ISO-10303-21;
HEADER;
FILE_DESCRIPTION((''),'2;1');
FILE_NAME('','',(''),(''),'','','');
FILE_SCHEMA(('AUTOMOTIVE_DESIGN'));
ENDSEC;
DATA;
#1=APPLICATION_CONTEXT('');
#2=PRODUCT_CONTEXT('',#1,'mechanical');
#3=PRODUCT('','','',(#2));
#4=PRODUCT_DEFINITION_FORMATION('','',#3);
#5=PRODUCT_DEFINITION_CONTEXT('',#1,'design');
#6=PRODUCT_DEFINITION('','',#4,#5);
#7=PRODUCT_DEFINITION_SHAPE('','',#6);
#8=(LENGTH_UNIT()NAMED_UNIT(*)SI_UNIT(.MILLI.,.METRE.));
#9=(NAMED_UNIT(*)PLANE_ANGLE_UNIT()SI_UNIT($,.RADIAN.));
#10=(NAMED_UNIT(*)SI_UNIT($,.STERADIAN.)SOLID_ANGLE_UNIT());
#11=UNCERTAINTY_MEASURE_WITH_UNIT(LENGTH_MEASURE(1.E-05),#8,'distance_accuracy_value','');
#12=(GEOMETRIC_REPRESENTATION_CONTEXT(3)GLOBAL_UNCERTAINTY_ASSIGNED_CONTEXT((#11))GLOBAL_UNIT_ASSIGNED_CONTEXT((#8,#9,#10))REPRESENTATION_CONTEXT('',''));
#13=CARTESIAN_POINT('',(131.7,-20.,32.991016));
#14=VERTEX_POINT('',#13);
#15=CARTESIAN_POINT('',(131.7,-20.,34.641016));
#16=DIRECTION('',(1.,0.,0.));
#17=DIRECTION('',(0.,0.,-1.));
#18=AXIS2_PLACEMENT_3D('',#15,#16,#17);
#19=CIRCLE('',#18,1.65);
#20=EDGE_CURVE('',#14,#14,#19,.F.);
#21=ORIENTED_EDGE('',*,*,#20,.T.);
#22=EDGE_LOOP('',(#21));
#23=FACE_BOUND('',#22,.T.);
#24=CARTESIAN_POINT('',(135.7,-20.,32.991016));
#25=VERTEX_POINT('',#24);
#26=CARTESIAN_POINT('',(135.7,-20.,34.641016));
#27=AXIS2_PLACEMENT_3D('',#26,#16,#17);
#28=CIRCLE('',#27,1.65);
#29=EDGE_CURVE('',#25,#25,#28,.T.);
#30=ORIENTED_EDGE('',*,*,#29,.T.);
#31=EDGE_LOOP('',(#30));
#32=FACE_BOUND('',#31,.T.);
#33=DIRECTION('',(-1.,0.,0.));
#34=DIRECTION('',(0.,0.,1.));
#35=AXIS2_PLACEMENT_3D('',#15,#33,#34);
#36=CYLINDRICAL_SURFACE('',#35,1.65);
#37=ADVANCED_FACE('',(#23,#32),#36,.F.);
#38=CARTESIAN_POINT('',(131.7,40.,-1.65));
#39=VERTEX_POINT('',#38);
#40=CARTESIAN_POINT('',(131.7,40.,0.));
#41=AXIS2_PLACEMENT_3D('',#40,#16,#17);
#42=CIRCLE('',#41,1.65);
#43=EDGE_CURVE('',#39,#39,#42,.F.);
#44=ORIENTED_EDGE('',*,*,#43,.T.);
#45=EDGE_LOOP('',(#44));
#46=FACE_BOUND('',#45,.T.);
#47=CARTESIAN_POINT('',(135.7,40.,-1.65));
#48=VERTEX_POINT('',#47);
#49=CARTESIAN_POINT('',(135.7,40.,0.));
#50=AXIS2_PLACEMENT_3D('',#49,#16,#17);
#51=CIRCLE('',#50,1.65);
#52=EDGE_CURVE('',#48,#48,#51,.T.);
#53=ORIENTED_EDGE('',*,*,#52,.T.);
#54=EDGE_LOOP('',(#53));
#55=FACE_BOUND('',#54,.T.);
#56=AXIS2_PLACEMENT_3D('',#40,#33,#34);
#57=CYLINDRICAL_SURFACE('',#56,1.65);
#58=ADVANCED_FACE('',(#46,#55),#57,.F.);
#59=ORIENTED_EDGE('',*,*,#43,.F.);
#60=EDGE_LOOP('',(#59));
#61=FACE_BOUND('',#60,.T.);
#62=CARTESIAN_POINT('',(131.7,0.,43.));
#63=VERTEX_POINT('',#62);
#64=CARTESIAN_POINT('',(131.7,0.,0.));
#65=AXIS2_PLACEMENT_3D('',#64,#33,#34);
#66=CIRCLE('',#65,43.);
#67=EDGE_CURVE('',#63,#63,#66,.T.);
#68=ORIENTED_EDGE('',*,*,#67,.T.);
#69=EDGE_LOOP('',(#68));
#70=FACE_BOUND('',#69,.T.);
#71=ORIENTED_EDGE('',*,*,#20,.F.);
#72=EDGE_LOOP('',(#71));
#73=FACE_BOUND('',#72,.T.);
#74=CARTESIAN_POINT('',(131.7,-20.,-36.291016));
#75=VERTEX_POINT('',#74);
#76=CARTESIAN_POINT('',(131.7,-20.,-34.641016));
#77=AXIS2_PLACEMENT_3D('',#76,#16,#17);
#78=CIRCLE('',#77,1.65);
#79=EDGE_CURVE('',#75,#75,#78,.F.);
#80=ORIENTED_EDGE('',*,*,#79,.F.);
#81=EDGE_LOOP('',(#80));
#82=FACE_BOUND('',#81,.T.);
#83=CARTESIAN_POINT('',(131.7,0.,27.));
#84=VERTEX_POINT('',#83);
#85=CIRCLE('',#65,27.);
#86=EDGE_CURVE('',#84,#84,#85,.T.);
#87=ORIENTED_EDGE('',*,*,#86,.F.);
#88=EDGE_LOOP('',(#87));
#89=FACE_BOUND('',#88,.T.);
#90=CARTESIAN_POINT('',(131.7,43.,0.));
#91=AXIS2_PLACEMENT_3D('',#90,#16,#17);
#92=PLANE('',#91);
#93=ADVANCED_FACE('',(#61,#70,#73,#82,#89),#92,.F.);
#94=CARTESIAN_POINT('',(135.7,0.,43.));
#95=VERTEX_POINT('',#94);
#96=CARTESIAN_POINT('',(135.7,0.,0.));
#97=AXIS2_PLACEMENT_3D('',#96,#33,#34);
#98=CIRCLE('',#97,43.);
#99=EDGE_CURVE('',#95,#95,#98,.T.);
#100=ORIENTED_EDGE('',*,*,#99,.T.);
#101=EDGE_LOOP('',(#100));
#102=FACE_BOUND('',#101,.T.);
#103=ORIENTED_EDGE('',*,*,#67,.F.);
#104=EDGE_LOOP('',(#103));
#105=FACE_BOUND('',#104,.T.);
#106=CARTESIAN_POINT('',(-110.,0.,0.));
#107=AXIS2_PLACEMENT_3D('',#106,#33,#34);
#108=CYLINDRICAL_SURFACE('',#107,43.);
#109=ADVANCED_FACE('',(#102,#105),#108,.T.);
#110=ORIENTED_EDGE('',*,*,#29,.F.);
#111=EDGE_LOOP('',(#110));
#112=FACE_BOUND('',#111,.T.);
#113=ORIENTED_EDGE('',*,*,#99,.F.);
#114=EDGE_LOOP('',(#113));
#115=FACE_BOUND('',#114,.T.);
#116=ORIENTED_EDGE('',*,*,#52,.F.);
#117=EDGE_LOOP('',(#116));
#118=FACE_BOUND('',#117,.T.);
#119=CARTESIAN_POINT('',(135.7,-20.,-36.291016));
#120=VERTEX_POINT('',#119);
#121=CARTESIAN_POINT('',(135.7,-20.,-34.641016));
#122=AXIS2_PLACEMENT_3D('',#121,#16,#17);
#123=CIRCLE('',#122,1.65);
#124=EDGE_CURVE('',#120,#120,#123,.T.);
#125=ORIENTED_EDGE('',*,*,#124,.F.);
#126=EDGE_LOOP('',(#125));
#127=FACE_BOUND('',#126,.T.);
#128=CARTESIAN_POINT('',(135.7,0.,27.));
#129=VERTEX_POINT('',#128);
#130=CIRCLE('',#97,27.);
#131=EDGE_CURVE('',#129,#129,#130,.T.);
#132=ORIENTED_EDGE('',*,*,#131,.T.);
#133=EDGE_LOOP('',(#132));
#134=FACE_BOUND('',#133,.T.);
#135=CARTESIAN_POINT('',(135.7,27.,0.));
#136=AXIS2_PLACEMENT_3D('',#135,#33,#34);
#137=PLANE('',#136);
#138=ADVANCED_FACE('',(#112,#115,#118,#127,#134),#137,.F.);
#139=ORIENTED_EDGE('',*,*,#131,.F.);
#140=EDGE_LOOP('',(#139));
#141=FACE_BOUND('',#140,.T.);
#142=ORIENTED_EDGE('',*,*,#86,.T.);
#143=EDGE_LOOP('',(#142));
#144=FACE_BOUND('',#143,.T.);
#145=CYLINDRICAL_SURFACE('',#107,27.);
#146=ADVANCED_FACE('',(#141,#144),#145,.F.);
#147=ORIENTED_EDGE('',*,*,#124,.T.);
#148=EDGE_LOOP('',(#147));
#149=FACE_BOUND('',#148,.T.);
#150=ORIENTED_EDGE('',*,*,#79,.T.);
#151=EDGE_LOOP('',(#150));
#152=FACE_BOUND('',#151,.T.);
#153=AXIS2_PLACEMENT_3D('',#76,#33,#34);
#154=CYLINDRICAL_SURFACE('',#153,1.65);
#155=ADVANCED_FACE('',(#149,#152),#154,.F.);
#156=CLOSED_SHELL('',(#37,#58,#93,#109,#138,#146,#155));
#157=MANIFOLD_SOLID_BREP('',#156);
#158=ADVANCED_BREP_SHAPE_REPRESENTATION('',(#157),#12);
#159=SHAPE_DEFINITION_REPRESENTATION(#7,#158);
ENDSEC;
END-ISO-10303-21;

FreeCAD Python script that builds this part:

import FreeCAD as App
import Part
import Sketcher

V = App.Vector
Q = App.Units.Quantity

doc = App.newDocument("Part")
body = doc.addObject("PartDesign::Body", "Body")

# Sketch on XY plane
sketch1 = body.newObject("Sketcher::SketchObject", "Sketch")
sketch1.AttachmentSupport = (doc.getObject("XY_Plane"), [""])
sketch1.MapMode = "FlatFace"
sketch1.addGeometry(Part.LineSegment(V(131.7, 43, 0), V(131.7, 27, 0)), False)
sketch1.addGeometry(Part.LineSegment(V(131.7, 27, 0), V(135.7, 27, 0)), False)
sketch1.addGeometry(Part.LineSegment(V(135.7, 27, 0), V(135.7, 43, 0)), False)
sketch1.addGeometry(Part.LineSegment(V(135.7, 43, 0), V(131.7, 43, 0)), False)
sketch1.addConstraint(Sketcher.Constraint("Coincident", 0, 2, 1, 1))
sketch1.addConstraint(Sketcher.Constraint("Coincident", 1, 2, 2, 1))
sketch1.addConstraint(Sketcher.Constraint("Coincident", 2, 2, 3, 1))
sketch1.addConstraint(Sketcher.Constraint("Coincident", 3, 2, 0, 1))
sketch1.addConstraint(Sketcher.Constraint("Vertical", 0))
sketch1.addConstraint(Sketcher.Constraint("Horizontal", 1))
sketch1.addConstraint(Sketcher.Constraint("Vertical", 2))
sketch1.addConstraint(Sketcher.Constraint("Horizontal", 3))
sketch1.addConstraint(Sketcher.Constraint("DistanceX", 1, 1, 1, 2, Q("4 mm")))
sketch1.addConstraint(Sketcher.Constraint("DistanceY", 0, 2, 0, 1, Q("16 mm")))
sketch1.addConstraint(Sketcher.Constraint("DistanceY", -1, 1, 0, 2, Q("27 mm")))
sketch1.addConstraint(Sketcher.Constraint("DistanceX", -1, 1, 0, 2, Q("131.7 mm")))
revolution = body.newObject("PartDesign::Revolution", "Revolution")
revolution.Profile = sketch1
revolution.ReferenceAxis = (sketch1, ["H_Axis"])
revolution.Angle = 360

# Sketch on YZ plane
sketch2 = body.newObject("Sketcher::SketchObject", "Sketch001")
sketch2.AttachmentSupport = (doc.getObject("YZ_Plane"), [""])
sketch2.MapMode = "FlatFace"
sketch2.addGeometry(Part.Circle(V(40, 0, 0), V(0, 0, 1), 1.6), False)
sketch2.addGeometry(Part.Circle(V(-20, 34.6, 0), V(0, 0, 1), 1.6), False)
sketch2.addGeometry(Part.Circle(V(-20, -34.6, 0), V(0, 0, 1), 1.6), False)
sketch2.addConstraint(Sketcher.Constraint("Equal", 0, 1))
sketch2.addConstraint(Sketcher.Constraint("Equal", 1, 2))
sketch2.addConstraint(Sketcher.Constraint("Symmetric", 1, 3, 2, 3, -1))
sketch2.addConstraint(Sketcher.Constraint("PointOnObject", 0, 3, -1))
sketch2.addConstraint(Sketcher.Constraint("Diameter", 0, Q("3.3 mm")))
sketch2.addConstraint(Sketcher.Constraint("DistanceX", -1, 1, 0, 3, Q("40 mm")))
sketch2.addConstraint(Sketcher.Constraint("DistanceX", 1, 3, -1, 1, Q("20 mm")))
sketch2.addConstraint(Sketcher.Constraint("DistanceY", -1, 1, 1, 3, Q("34.641016 mm")))
pocket1 = body.newObject("PartDesign::Pocket", "Pocket")
pocket1.Profile = sketch2
pocket1.Type = "ThroughAll"
pocket1.Midplane = True

doc.recompute()
